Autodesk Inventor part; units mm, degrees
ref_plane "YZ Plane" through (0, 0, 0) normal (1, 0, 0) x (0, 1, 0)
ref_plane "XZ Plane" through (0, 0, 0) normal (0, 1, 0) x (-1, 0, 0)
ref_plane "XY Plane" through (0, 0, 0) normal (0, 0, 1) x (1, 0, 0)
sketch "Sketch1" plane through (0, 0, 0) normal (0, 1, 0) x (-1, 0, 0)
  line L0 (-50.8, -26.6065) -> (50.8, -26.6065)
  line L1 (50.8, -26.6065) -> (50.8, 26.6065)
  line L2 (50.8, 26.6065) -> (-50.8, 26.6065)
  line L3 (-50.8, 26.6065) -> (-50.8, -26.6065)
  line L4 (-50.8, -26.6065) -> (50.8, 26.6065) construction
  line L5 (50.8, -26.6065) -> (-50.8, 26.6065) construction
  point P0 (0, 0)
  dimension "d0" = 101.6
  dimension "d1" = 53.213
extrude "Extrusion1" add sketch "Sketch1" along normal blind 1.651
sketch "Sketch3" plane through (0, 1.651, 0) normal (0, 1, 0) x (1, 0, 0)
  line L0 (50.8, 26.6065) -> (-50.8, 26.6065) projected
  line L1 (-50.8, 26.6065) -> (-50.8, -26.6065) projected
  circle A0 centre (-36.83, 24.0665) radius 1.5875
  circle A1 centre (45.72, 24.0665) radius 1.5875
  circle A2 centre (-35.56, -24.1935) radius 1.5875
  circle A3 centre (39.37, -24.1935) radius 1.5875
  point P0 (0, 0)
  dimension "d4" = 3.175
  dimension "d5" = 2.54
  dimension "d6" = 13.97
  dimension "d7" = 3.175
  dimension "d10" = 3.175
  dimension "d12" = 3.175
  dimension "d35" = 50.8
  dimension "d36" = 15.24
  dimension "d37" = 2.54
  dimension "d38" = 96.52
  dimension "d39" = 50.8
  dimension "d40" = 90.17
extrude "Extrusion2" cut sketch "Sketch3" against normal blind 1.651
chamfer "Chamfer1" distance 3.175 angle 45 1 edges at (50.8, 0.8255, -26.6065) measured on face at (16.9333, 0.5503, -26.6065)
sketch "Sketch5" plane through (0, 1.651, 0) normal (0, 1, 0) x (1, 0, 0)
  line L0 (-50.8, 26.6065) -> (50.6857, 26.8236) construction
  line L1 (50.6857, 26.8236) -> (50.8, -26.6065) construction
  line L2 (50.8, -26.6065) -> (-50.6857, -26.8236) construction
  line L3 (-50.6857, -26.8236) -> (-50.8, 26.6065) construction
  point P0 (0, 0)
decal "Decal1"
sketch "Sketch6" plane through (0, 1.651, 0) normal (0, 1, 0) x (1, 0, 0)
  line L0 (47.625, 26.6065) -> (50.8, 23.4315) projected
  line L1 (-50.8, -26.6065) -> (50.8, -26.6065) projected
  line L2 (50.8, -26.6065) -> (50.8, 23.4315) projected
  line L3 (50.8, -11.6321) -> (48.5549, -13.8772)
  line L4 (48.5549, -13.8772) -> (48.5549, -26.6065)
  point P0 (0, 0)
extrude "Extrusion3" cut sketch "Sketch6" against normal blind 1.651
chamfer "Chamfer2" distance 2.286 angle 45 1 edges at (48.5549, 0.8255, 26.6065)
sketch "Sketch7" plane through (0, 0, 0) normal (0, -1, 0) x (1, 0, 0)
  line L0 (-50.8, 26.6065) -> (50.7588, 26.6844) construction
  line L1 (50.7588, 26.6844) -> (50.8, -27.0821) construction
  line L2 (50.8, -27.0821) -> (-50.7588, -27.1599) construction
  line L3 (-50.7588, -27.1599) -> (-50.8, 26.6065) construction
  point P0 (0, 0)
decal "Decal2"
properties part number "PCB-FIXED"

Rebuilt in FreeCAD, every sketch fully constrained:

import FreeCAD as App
import Part
import Sketcher
from FreeCAD import Vector
Q = App.Units.Quantity


def edges_at(feature, points):
    """Names of the edges that pass closest to the given points."""
    edges = feature.Shape.Edges
    near = lambda p: min(range(len(edges)), key=lambda i: edges[i].distToShape(Part.Vertex(*p))[0])
    return sorted({f"Edge{near(p) + 1}" for p in points})


def add_polygon(sketch, points):
    """Adds a closed chain of lines whose ends are joined by coincident constraints."""
    first, n = sketch.GeometryCount, len(points)
    for a, b in zip(points, points[1:] + points[:1]):
        sketch.addGeometry(Part.LineSegment(App.Vector(*a, 0), App.Vector(*b, 0)), False)
    for i in range(n):
        sketch.addConstraint(Sketcher.Constraint("Coincident", first + i, 2, first + (i + 1) % n, 1))

doc = App.newDocument("Part")
body = doc.addObject("PartDesign::Body", "Body")

sketch1 = body.newObject("Sketcher::SketchObject", "Sketch")
sketch1.AttachmentSupport = (doc.getObject("XZ_Plane"), [""])
sketch1.MapMode = "FlatFace"
add_polygon(sketch1, [(51, 27), (51, -27), (-51, -27), (-51, 27)])
sketch1.addConstraint([
    Sketcher.Constraint("Vertical", 0),
    Sketcher.Constraint("Horizontal", 1),
    Sketcher.Constraint("Vertical", 2),
    Sketcher.Constraint("Horizontal", 3),
    Sketcher.Constraint("Symmetric", 0, 2, 2, 2, -1, 1),
    Sketcher.Constraint("DistanceX", 1, 2, 1, 1, Q("4 in")),
    Sketcher.Constraint("DistanceY", 0, 2, 0, 1, Q("2.095 in")),
])
pad1 = body.newObject("PartDesign::Pad", "Pad")
pad1.Profile = sketch1
pad1.Length = Q("0.065 in")
pad1.Reversed = True

sketch2 = body.newObject("Sketcher::SketchObject", "Sketch001")
sketch2.AttachmentSupport = (doc.getObject("XZ_Plane"), [""])
sketch2.MapMode = "FlatFace"
sketch2.AttachmentOffset = App.Placement(Vector(0, 0, -0.065 * 25.4), App.Rotation())
sketch2.addGeometry([
    Part.Circle(Vector(-36.8, -24.1, 0), Vector(0, 0, 1), 1.6),
    Part.Circle(Vector(45.7, -24.1, 0), Vector(0, 0, 1), 1.6),
    Part.Circle(Vector(-35.6, 24.2, 0), Vector(0, 0, 1), 1.6),
    Part.Circle(Vector(39.4, 24.2, 0), Vector(0, 0, 1), 1.6),
], False)
sketch2.addConstraint([
    Sketcher.Constraint("Equal", 0, 1),
    Sketcher.Constraint("Equal", 1, 2),
    Sketcher.Constraint("Equal", 2, 3),
    Sketcher.Constraint("Horizontal", 0, 3, 1, 3),
    Sketcher.Constraint("Horizontal", 2, 3, 3, 3),
    Sketcher.Constraint("Diameter", 0, Q("0.125 in")),
    Sketcher.Constraint("DistanceX", 0, 3, 3, 3, Q("3 in")),
    Sketcher.Constraint("DistanceX", -1, 1, 1, 3, Q("1.8 in")),
    Sketcher.Constraint("DistanceX", 2, 3, -1, 1, Q("1.4 in")),
    Sketcher.Constraint("DistanceY", 0, 3, 2, 3, Q("1.9 in")),
    Sketcher.Constraint("DistanceX", 0, 3, -1, 1, Q("1.45 in")),
    Sketcher.Constraint("DistanceY", 0, 3, -1, 1, Q("0.9475 in")),
])
pocket1 = body.newObject("PartDesign::Pocket", "Pocket")
pocket1.Profile = sketch2
pocket1.Length = Q("0.065 in")
pocket1.Reversed = True
doc.recompute()

chamfer = body.newObject("PartDesign::Chamfer", "Chamfer")
chamfer.Base = (pocket1, edges_at(pocket1, [(50.8, 0.826, -26.607)]))
chamfer.Size = Q("0.125 in")

sketch3 = body.newObject("Sketcher::SketchObject", "Sketch002")
sketch3.AttachmentSupport = (doc.getObject("XZ_Plane"), [""])
sketch3.MapMode = "FlatFace"
sketch3.AttachmentOffset = App.Placement(Vector(0, 0, -0.065 * 25.4), App.Rotation())
add_polygon(sketch3, [(48.6, 13.9), (48.6, 26.6), (50.8, 26.6), (50.8, 11.6)])
sketch3.addConstraint([
    Sketcher.Constraint("Vertical", 0),
    Sketcher.Constraint("Horizontal", 1),
    Sketcher.Constraint("Vertical", 2),
    Sketcher.Constraint("DistanceX", -1, 1, 1, 2, Q("2 in")),
    Sketcher.Constraint("Angle", 3, Q("135 deg")),
    Sketcher.Constraint("Distance", 3, Q("0.125 in")),
    Sketcher.Constraint("DistanceY", 0, 1, 0, 2, 12.7293),
    Sketcher.Constraint("DistanceY", -1, 1, 0, 2, Q("1.0475 in")),
])
pocket2 = body.newObject("PartDesign::Pocket", "Pocket001")
pocket2.Profile = sketch3
pocket2.Length = Q("0.065 in")
pocket2.Reversed = True
doc.recompute()

chamfer2 = body.newObject("PartDesign::Chamfer", "Chamfer001")
chamfer2.Base = (pocket2, edges_at(pocket2, [(48.555, 0.826, 26.607)]))
chamfer2.Size = Q("0.09 in")

doc.recompute()
